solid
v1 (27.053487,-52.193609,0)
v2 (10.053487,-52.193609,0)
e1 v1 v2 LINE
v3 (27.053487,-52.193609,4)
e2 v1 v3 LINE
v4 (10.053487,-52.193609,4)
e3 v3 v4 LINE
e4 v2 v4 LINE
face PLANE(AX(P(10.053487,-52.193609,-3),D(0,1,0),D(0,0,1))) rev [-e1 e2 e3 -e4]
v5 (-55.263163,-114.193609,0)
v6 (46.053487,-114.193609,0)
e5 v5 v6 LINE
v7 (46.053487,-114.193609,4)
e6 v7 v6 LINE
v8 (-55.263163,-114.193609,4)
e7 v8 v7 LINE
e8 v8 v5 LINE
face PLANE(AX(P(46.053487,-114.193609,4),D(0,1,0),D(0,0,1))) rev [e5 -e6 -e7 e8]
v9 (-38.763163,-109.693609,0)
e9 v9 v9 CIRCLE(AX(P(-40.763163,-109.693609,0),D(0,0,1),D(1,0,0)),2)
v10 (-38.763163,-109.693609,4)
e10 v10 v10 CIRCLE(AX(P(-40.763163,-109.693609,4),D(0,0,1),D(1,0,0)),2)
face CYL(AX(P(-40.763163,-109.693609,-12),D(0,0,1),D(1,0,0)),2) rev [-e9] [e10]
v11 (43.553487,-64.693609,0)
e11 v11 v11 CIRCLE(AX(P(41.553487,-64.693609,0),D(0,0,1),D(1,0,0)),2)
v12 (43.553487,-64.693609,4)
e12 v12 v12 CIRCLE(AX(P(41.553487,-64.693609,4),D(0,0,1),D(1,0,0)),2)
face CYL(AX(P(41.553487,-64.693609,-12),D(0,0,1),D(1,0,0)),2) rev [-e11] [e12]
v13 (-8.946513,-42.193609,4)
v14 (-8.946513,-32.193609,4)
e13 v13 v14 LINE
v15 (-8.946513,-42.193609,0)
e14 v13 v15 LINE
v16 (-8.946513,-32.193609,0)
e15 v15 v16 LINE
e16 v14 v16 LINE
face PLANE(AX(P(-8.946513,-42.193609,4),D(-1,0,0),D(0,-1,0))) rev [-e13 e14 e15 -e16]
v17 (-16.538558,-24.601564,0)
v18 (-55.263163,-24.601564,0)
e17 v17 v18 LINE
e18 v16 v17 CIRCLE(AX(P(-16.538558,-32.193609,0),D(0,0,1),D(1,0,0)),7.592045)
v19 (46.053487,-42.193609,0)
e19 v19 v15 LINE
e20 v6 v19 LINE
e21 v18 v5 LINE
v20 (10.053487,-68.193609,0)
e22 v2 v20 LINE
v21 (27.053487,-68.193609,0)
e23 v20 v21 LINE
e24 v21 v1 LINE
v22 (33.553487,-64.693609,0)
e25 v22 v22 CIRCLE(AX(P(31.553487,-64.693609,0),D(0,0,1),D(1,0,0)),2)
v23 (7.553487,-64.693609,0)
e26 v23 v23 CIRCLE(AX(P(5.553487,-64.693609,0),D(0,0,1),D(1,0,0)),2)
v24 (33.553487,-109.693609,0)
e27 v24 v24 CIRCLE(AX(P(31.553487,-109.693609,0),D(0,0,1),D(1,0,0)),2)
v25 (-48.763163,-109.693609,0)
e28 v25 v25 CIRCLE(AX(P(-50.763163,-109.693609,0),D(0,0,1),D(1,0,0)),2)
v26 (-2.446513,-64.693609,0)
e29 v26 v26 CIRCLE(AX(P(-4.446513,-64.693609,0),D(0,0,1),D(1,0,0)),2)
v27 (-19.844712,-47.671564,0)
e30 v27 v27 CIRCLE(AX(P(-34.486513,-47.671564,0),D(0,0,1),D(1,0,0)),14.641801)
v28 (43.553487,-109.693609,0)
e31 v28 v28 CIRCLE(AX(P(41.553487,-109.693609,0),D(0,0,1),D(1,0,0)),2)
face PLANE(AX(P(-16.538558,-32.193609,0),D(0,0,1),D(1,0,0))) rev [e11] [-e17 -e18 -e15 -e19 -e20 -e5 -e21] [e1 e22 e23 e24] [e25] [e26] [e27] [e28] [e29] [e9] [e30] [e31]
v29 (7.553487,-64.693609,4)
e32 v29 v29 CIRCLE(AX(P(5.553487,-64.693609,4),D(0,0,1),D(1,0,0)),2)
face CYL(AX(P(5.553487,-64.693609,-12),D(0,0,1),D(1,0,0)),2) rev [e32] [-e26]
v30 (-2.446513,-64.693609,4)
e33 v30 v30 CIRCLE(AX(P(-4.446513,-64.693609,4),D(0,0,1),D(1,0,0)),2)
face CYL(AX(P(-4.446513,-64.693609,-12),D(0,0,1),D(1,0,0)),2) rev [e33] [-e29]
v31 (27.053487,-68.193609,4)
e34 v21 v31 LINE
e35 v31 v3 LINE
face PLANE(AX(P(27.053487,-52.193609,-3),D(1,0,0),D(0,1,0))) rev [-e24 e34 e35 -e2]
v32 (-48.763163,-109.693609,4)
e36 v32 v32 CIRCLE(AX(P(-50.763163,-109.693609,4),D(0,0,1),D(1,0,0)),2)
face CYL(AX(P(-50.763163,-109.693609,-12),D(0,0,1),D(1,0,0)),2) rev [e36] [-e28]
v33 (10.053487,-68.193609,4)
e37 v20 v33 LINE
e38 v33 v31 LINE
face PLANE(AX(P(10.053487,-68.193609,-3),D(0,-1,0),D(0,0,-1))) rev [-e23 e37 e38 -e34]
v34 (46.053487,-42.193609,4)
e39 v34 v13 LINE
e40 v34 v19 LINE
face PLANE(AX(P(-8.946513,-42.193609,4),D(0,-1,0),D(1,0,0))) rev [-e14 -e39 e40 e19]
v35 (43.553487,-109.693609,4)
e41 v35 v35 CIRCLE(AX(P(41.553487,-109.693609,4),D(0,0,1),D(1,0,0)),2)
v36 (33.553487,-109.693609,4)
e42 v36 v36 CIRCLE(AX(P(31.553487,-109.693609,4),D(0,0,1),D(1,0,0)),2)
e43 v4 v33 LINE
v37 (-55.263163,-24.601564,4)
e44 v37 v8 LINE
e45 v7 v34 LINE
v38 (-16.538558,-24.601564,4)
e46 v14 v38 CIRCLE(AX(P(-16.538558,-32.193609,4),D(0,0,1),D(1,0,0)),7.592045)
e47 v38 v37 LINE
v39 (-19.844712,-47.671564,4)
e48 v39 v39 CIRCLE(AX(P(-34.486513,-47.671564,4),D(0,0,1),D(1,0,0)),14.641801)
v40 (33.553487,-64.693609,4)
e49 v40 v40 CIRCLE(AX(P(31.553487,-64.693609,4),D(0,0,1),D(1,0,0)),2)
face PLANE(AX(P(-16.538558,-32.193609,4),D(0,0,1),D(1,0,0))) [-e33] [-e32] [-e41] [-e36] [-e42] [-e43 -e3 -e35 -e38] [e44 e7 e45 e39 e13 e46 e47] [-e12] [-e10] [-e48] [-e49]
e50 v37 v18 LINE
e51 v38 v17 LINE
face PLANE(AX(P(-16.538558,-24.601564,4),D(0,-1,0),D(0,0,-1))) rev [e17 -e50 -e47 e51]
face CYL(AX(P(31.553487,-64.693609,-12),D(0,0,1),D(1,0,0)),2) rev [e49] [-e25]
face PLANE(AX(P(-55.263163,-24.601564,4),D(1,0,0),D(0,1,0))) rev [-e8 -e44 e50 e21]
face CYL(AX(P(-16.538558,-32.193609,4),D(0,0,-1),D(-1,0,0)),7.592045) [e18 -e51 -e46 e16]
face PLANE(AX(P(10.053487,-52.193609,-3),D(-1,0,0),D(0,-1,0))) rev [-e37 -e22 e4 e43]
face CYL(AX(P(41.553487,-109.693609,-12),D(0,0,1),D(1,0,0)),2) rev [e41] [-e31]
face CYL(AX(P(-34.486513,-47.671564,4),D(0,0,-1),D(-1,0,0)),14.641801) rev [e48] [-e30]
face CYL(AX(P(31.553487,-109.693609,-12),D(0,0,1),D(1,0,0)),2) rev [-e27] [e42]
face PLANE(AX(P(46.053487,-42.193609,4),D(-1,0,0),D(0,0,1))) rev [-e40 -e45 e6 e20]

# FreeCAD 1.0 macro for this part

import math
import FreeCAD as App
import Part
import Sketcher
from FreeCAD import Vector

doc = App.newDocument("Part")
body = doc.addObject("PartDesign::Body", "Body")

# Sketch on XY plane
sketch1 = body.newObject("Sketcher::SketchObject", "Sketch")
sketch1.AttachmentSupport = (doc.getObject("XY_Plane"), [""])
sketch1.MapMode = "FlatFace"
sketch1.addGeometry([
    Part.LineSegment(Vector(46, -42, 0), Vector(-9, -42, 0)),  # 0
    Part.LineSegment(Vector(-9, -42, 0), Vector(-9, -32, 0)),  # 1
    Part.ArcOfCircle(Part.Circle(Vector(-17, -32, 0), Vector(0, 0, 1), 8), math.radians(0), math.radians(90)),  # 2
    Part.LineSegment(Vector(-17, -25, 0), Vector(-55, -25, 0)),  # 3
    Part.LineSegment(Vector(-55, -25, 0), Vector(-55, -114, 0)),  # 4
    Part.LineSegment(Vector(-55, -114, 0), Vector(46, -114, 0)),  # 5
    Part.LineSegment(Vector(46, -114, 0), Vector(46, -42, 0)),  # 6
    Part.Circle(Vector(-34, -48, 0), Vector(0, 0, 1), 15),  # 7
], False)
sketch1.addConstraint([
    Sketcher.Constraint("Coincident", 0, 2, 1, 1),
    Sketcher.Constraint("Tangent", 1, 2, 2, 1),
    Sketcher.Constraint("Tangent", 2, 2, 3, 1),
    Sketcher.Constraint("Coincident", 3, 2, 4, 1),
    Sketcher.Constraint("Coincident", 4, 2, 5, 1),
    Sketcher.Constraint("Coincident", 5, 2, 6, 1),
    Sketcher.Constraint("Coincident", 6, 2, 0, 1),
    Sketcher.Constraint("Horizontal", 0),
    Sketcher.Constraint("Vertical", 1),
    Sketcher.Constraint("Horizontal", 3),
    Sketcher.Constraint("Vertical", 4),
    Sketcher.Constraint("Horizontal", 5),
    Sketcher.Constraint("Vertical", 6),
    Sketcher.Constraint("DistanceX", 0, 2, 0, 1, 55.0),
    Sketcher.Constraint("DistanceY", 1, 1, 1, 2, 10.0),
    Sketcher.Constraint("DistanceY", 6, 1, 6, 2, 72.0),
    Sketcher.Constraint("DistanceX", 7, 3, 0, 2, 25.54),
    Sketcher.Constraint("DistanceY", 7, 3, 2, 2, 23.07),
    Sketcher.Constraint("Diameter", 7, 29.283602),
    Sketcher.Constraint("Radius", 2, 7.592045),
    Sketcher.Constraint("DistanceX", 5, 1, 5, 2, 101.31665),
    Sketcher.Constraint("DistanceY", 2, 3, -1, 1, 32.193609),
    Sketcher.Constraint("DistanceX", 2, 3, -1, 1, 16.538558),
])
pad1 = body.newObject("PartDesign::Pad", "Pad")
pad1.Profile = sketch1
pad1.Length = 4

# Sketch on XY plane
sketch2 = body.newObject("Sketcher::SketchObject", "Sketch001")
sketch2.AttachmentSupport = (doc.getObject("XY_Plane"), [""])
sketch2.MapMode = "FlatFace"
sketch2.AttachmentOffset = App.Placement(Vector(0, 0, 4), App.Rotation())
sketch2.addGeometry([
    Part.Circle(Vector(41.6, -109.7, 0), Vector(0, 0, 1), 2),  # 0
    Part.Circle(Vector(31.6, -109.7, 0), Vector(0, 0, 1), 2),  # 1
    Part.Circle(Vector(-50.8, -109.7, 0), Vector(0, 0, 1), 2),  # 2
    Part.Circle(Vector(-40.8, -109.7, 0), Vector(0, 0, 1), 2),  # 3
    Part.Circle(Vector(41.6, -64.7, 0), Vector(0, 0, 1), 2),  # 4
    Part.Circle(Vector(31.6, -64.7, 0), Vector(0, 0, 1), 2),  # 5
    Part.Circle(Vector(-4.4, -64.7, 0), Vector(0, 0, 1), 2),  # 6
    Part.Circle(Vector(5.6, -64.7, 0), Vector(0, 0, 1), 2),  # 7
], False)
sketch2.addConstraint([
    Sketcher.Constraint("Equal", 0, 1),
    Sketcher.Constraint("Equal", 1, 2),
    Sketcher.Constraint("Equal", 2, 3),
    Sketcher.Constraint("Equal", 3, 4),
    Sketcher.Constraint("Equal", 4, 5),
    Sketcher.Constraint("Equal", 5, 6),
    Sketcher.Constraint("Equal", 6, 7),
    Sketcher.Constraint("Horizontal", 0, 3, 1, 3),
    Sketcher.Constraint("Horizontal", 1, 3, 2, 3),
    Sketcher.Constraint("Horizontal", 2, 3, 3, 3),
    Sketcher.Constraint("Horizontal", 4, 3, 5, 3),
    Sketcher.Constraint("Horizontal", 5, 3, 6, 3),
    Sketcher.Constraint("Horizontal", 6, 3, 7, 3),
    Sketcher.Constraint("Vertical", 0, 3, 4, 3),
    Sketcher.Constraint("Vertical", 1, 3, 5, 3),
    Sketcher.Constraint("Diameter", 0, 4.0),
    Sketcher.Constraint("DistanceX", 1, 3, 0, 3, 10.0),
    Sketcher.Constraint("DistanceX", 2, 3, 3, 3, 10.0),
    Sketcher.Constraint("DistanceY", 0, 3, 4, 3, 45.0),
    Sketcher.Constraint("DistanceX", 6, 3, 5, 3, 36.0),
    Sketcher.Constraint("DistanceX", 6, 3, 7, 3, 10.0),
    Sketcher.Constraint("DistanceY", 0, 3, -1, 1, 109.693609),
    Sketcher.Constraint("DistanceX", 2, 3, 1, 3, 82.31665),
    Sketcher.Constraint("DistanceX", -1, 1, 0, 3, 41.553487),
])
pocket1 = body.newObject("PartDesign::Pocket", "Pocket")
pocket1.Profile = sketch2
pocket1.Length = 16

# Sketch on XY plane
sketch3 = body.newObject("Sketcher::SketchObject", "Sketch002")
sketch3.AttachmentSupport = (doc.getObject("XY_Plane"), [""])
sketch3.MapMode = "FlatFace"
sketch3.AttachmentOffset = App.Placement(Vector(0, 0, 4), App.Rotation())
sketch3.addGeometry([
    Part.LineSegment(Vector(10, -52, 0), Vector(10, -68, 0)),
    Part.LineSegment(Vector(10, -68, 0), Vector(27, -68, 0)),
    Part.LineSegment(Vector(27, -68, 0), Vector(27, -52, 0)),
    Part.LineSegment(Vector(27, -52, 0), Vector(10, -52, 0)),
], False)
sketch3.addConstraint([
    Sketcher.Constraint("Coincident", 0, 2, 1, 1),
    Sketcher.Constraint("Coincident", 1, 2, 2, 1),
    Sketcher.Constraint("Coincident", 2, 2, 3, 1),
    Sketcher.Constraint("Coincident", 3, 2, 0, 1),
    Sketcher.Constraint("Vertical", 0),
    Sketcher.Constraint("Horizontal", 1),
    Sketcher.Constraint("Vertical", 2),
    Sketcher.Constraint("Horizontal", 3),
    Sketcher.Constraint("DistanceX", 1, 1, 1, 2, 17.0),
    Sketcher.Constraint("DistanceY", 0, 2, 0, 1, 16.0),
    Sketcher.Constraint("DistanceY", 0, 2, -1, 1, 68.193609),
    Sketcher.Constraint("DistanceX", -1, 1, 0, 2, 10.053487),
])
pocket2 = body.newObject("PartDesign::Pocket", "Pocket001")
pocket2.Profile = sketch3
pocket2.Length = 7

doc.recompute()
